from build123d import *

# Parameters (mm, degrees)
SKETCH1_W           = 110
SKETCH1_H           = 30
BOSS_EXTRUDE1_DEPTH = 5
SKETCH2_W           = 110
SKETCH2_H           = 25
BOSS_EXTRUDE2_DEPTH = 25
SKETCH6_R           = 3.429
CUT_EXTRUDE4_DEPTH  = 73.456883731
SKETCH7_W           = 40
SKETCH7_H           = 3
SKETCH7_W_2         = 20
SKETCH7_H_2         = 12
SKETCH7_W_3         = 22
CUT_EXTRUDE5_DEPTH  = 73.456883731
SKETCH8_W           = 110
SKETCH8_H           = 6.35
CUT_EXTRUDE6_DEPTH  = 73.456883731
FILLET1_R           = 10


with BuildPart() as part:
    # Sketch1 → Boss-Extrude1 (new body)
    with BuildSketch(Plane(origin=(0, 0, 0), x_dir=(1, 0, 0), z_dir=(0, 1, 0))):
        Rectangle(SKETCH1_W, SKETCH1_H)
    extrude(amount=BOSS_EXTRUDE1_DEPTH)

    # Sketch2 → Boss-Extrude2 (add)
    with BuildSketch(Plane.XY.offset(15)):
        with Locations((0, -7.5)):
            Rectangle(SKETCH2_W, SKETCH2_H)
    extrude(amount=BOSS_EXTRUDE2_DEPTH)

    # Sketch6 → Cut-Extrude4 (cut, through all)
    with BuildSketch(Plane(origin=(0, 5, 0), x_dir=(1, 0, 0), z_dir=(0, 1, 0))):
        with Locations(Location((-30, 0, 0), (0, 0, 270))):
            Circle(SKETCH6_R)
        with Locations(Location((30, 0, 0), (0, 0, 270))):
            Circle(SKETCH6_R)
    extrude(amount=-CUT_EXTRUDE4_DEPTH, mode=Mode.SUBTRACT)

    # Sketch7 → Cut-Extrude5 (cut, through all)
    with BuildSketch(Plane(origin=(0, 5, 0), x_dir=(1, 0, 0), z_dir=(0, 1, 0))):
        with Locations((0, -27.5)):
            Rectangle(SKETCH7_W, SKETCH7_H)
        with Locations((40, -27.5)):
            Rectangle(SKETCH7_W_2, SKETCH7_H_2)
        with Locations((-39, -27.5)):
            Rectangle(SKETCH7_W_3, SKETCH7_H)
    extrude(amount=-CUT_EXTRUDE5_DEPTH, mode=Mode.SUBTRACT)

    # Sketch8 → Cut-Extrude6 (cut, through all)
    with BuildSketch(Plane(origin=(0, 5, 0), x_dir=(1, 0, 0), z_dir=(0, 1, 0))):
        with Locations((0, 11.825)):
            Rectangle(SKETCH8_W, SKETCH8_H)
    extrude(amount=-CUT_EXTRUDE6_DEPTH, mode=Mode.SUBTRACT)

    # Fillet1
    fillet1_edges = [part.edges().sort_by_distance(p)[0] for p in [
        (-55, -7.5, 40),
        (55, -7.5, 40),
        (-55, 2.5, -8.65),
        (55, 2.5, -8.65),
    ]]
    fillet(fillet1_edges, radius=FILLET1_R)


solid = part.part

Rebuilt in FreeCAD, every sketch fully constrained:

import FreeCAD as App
import Part
import Sketcher


def edges_at(feature, points):
    """Names of the edges that pass closest to the given points."""
    edges = feature.Shape.Edges
    near = lambda p: min(range(len(edges)), key=lambda i: edges[i].distToShape(Part.Vertex(*p))[0])
    return sorted({f"Edge{near(p) + 1}" for p in points})

doc = App.newDocument("Part")
params = doc.addObject("Spreadsheet::Sheet", "Params")
for row, (alias, value) in enumerate([
    ("sketch1_width", "110 mm"),
    ("sketch1_height", "30 mm"),
    ("pad1_length", "5 mm"),
    ("sketch2_width", "110 mm"),
    ("sketch2_height", "25 mm"),
    ("pad2_length", "25 mm"),
    ("sketch4_width", "40 mm"),
    ("sketch4_width2", "20 mm"),
    ("sketch4_width3", "22 mm"),
    ("sketch4_height", "3 mm"),
    ("sketch4_height2", "12 mm"),
    ("sketch5_width", "110 mm"),
    ("sketch5_height", "6.35 mm"),
    ("fillet_radius", "10 mm"),
], start=1):
    params.set(f"A{row}", alias)
    params.set(f"B{row}", "=" + value)
    params.setAlias(f"B{row}", alias)

body = doc.addObject("PartDesign::Body", "Body")

# Sketch on XZ plane
sketch1 = body.newObject("Sketcher::SketchObject", "Sketch")
sketch1.AttachmentSupport = (doc.getObject("XZ_Plane"), [""])
sketch1.MapMode = "FlatFace"
sketch1.addGeometry([
    Part.LineSegment(App.Vector(-55, -15, 0), App.Vector(-55, 15, 0)),
    Part.LineSegment(App.Vector(-55, 15, 0), App.Vector(55, 15, 0)),
    Part.LineSegment(App.Vector(55, 15, 0), App.Vector(55, -15, 0)),
    Part.LineSegment(App.Vector(55, -15, 0), App.Vector(-55, -15, 0)),
], False)
sketch1.addConstraint([
    Sketcher.Constraint("Coincident", 0, 2, 1, 1),
    Sketcher.Constraint("Coincident", 1, 2, 2, 1),
    Sketcher.Constraint("Coincident", 2, 2, 3, 1),
    Sketcher.Constraint("Coincident", 3, 2, 0, 1),
    Sketcher.Constraint("Vertical", 0),
    Sketcher.Constraint("Horizontal", 1),
    Sketcher.Constraint("Vertical", 2),
    Sketcher.Constraint("Horizontal", 3),
    Sketcher.Constraint("Symmetric", 0, 2, 2, 2, -1, 1),
    Sketcher.Constraint("DistanceX", 1, 1, 1, 2, 110.0),
    Sketcher.Constraint("DistanceY", 0, 1, 0, 2, 30.0),
])
sketch1.setExpression("Constraints[9]", "Params.sketch1_width")
sketch1.setExpression("Constraints[10]", "Params.sketch1_height")
pad1 = body.newObject("PartDesign::Pad", "Pad")
pad1.Profile = sketch1
pad1.setExpression("Length", "Params.pad1_length")
pad1.Reversed = True

# Sketch on XY plane
sketch2 = body.newObject("Sketcher::SketchObject", "Sketch001")
sketch2.AttachmentSupport = (doc.getObject("XY_Plane"), [""])
sketch2.MapMode = "FlatFace"
sketch2.AttachmentOffset = App.Placement(App.Vector(0, 0, 15), App.Rotation())
sketch2.addGeometry([
    Part.LineSegment(App.Vector(-55, 5, 0), App.Vector(-55, -20, 0)),
    Part.LineSegment(App.Vector(-55, -20, 0), App.Vector(55, -20, 0)),
    Part.LineSegment(App.Vector(55, -20, 0), App.Vector(55, 5, 0)),
    Part.LineSegment(App.Vector(55, 5, 0), App.Vector(-55, 5, 0)),
], False)
sketch2.addConstraint([
    Sketcher.Constraint("Coincident", 0, 2, 1, 1),
    Sketcher.Constraint("Coincident", 1, 2, 2, 1),
    Sketcher.Constraint("Coincident", 2, 2, 3, 1),
    Sketcher.Constraint("Coincident", 3, 2, 0, 1),
    Sketcher.Constraint("Vertical", 0),
    Sketcher.Constraint("Horizontal", 1),
    Sketcher.Constraint("Vertical", 2),
    Sketcher.Constraint("Horizontal", 3),
    Sketcher.Constraint("DistanceX", 1, 1, 1, 2, 110.0),
    Sketcher.Constraint("DistanceY", 0, 2, 0, 1, 25.0),
    Sketcher.Constraint("DistanceX", 0, 2, -1, 1, 55.0),
    Sketcher.Constraint("DistanceY", 0, 2, -1, 1, 20.0),
])
sketch2.setExpression("Constraints[8]", "Params.sketch2_width")
sketch2.setExpression("Constraints[9]", "Params.sketch2_height")
pad2 = body.newObject("PartDesign::Pad", "Pad001")
pad2.Profile = sketch2
pad2.setExpression("Length", "Params.pad2_length")

# Sketch on XZ plane
sketch3 = body.newObject("Sketcher::SketchObject", "Sketch002")
sketch3.AttachmentSupport = (doc.getObject("XZ_Plane"), [""])
sketch3.MapMode = "FlatFace"
sketch3.AttachmentOffset = App.Placement(App.Vector(0, 0, -5), App.Rotation())
sketch3.addGeometry([
    Part.Circle(App.Vector(-30, 0, 0), App.Vector(0, 0, 1), 3.4),
    Part.Circle(App.Vector(30, 0, 0), App.Vector(0, 0, 1), 3.4),
], False)
sketch3.addConstraint([
    Sketcher.Constraint("Equal", 0, 1),
    Sketcher.Constraint("Symmetric", 0, 3, 1, 3, -1, 1),
    Sketcher.Constraint("PointOnObject", 0, 3, -1),
    Sketcher.Constraint("Diameter", 0, 6.858),
    Sketcher.Constraint("DistanceX", 0, 3, -1, 1, 30.0),
])
pocket1 = body.newObject("PartDesign::Pocket", "Pocket")
pocket1.Profile = sketch3
pocket1.Type = "ThroughAll"
pocket1.Reversed = True

# Sketch on XZ plane
sketch4 = body.newObject("Sketcher::SketchObject", "Sketch003")
sketch4.AttachmentSupport = (doc.getObject("XZ_Plane"), [""])
sketch4.MapMode = "FlatFace"
sketch4.AttachmentOffset = App.Placement(App.Vector(0, 0, -5), App.Rotation())
sketch4.addGeometry([
    Part.LineSegment(App.Vector(-20, 26, 0), App.Vector(-20, 29, 0)),  # 0
    Part.LineSegment(App.Vector(-20, 29, 0), App.Vector(20, 29, 0)),  # 1
    Part.LineSegment(App.Vector(20, 29, 0), App.Vector(20, 26, 0)),  # 2
    Part.LineSegment(App.Vector(20, 26, 0), App.Vector(-20, 26, 0)),  # 3
    Part.LineSegment(App.Vector(30, 21.5, 0), App.Vector(30, 33.5, 0)),  # 4
    Part.LineSegment(App.Vector(30, 33.5, 0), App.Vector(50, 33.5, 0)),  # 5
    Part.LineSegment(App.Vector(50, 33.5, 0), App.Vector(50, 21.5, 0)),  # 6
    Part.LineSegment(App.Vector(50, 21.5, 0), App.Vector(30, 21.5, 0)),  # 7
    Part.LineSegment(App.Vector(-50, 26, 0), App.Vector(-50, 29, 0)),  # 8
    Part.LineSegment(App.Vector(-50, 29, 0), App.Vector(-28, 29, 0)),  # 9
    Part.LineSegment(App.Vector(-28, 29, 0), App.Vector(-28, 26, 0)),  # 10
    Part.LineSegment(App.Vector(-28, 26, 0), App.Vector(-50, 26, 0)),  # 11
], False)
sketch4.addConstraint([
    Sketcher.Constraint("Coincident", 0, 2, 1, 1),
    Sketcher.Constraint("Coincident", 1, 2, 2, 1),
    Sketcher.Constraint("Coincident", 2, 2, 3, 1),
    Sketcher.Constraint("Coincident", 3, 2, 0, 1),
    Sketcher.Constraint("Coincident", 4, 2, 5, 1),
    Sketcher.Constraint("Coincident", 5, 2, 6, 1),
    Sketcher.Constraint("Coincident", 6, 2, 7, 1),
    Sketcher.Constraint("Coincident", 7, 2, 4, 1),
    Sketcher.Constraint("Coincident", 8, 2, 9, 1),
    Sketcher.Constraint("Coincident", 9, 2, 10, 1),
    Sketcher.Constraint("Coincident", 10, 2, 11, 1),
    Sketcher.Constraint("Coincident", 11, 2, 8, 1),
    Sketcher.Constraint("Vertical", 0),
    Sketcher.Constraint("Horizontal", 1),
    Sketcher.Constraint("Vertical", 2),
    Sketcher.Constraint("Horizontal", 3),
    Sketcher.Constraint("Vertical", 4),
    Sketcher.Constraint("Horizontal", 5),
    Sketcher.Constraint("Vertical", 6),
    Sketcher.Constraint("Horizontal", 7),
    Sketcher.Constraint("Vertical", 8),
    Sketcher.Constraint("Horizontal", 9),
    Sketcher.Constraint("Vertical", 10),
    Sketcher.Constraint("Horizontal", 11),
    Sketcher.Constraint("Horizontal", 1, 2, 8, 2),
    Sketcher.Constraint("Horizontal", 3, 2, 10, 2),
    Sketcher.Constraint("DistanceX", 1, 1, 1, 2, 40.0),
    Sketcher.Constraint("DistanceX", 5, 1, 5, 2, 20.0),
    Sketcher.Constraint("DistanceX", 9, 1, 9, 2, 22.0),
    Sketcher.Constraint("DistanceY", 0, 1, 0, 2, 3.0),
    Sketcher.Constraint("DistanceY", 4, 1, 4, 2, 12.0),
    Sketcher.Constraint("DistanceX", 0, 2, -1, 1, 20.0),
    Sketcher.Constraint("DistanceY", -1, 1, 0, 2, 29.0),
    Sketcher.Constraint("DistanceX", -1, 1, 4, 2, 30.0),
    Sketcher.Constraint("DistanceX", 8, 2, -1, 1, 50.0),
    Sketcher.Constraint("DistanceY", -1, 1, 4, 2, 33.5),
])
sketch4.setExpression("Constraints[26]", "Params.sketch4_width")
sketch4.setExpression("Constraints[27]", "Params.sketch4_width2")
sketch4.setExpression("Constraints[28]", "Params.sketch4_width3")
sketch4.setExpression("Constraints[29]", "Params.sketch4_height")
sketch4.setExpression("Constraints[30]", "Params.sketch4_height2")
pocket2 = body.newObject("PartDesign::Pocket", "Pocket001")
pocket2.Profile = sketch4
pocket2.Type = "ThroughAll"
pocket2.Reversed = True

# Sketch on XZ plane
sketch5 = body.newObject("Sketcher::SketchObject", "Sketch004")
sketch5.AttachmentSupport = (doc.getObject("XZ_Plane"), [""])
sketch5.MapMode = "FlatFace"
sketch5.AttachmentOffset = App.Placement(App.Vector(0, 0, -5), App.Rotation())
sketch5.addGeometry([
    Part.LineSegment(App.Vector(-55, -15, 0), App.Vector(-55, -9, 0)),
    Part.LineSegment(App.Vector(-55, -9, 0), App.Vector(55, -9, 0)),
    Part.LineSegment(App.Vector(55, -9, 0), App.Vector(55, -15, 0)),
    Part.LineSegment(App.Vector(55, -15, 0), App.Vector(-55, -15, 0)),
], False)
sketch5.addConstraint([
    Sketcher.Constraint("Coincident", 0, 2, 1, 1),
    Sketcher.Constraint("Coincident", 1, 2, 2, 1),
    Sketcher.Constraint("Coincident", 2, 2, 3, 1),
    Sketcher.Constraint("Coincident", 3, 2, 0, 1),
    Sketcher.Constraint("Vertical", 0),
    Sketcher.Constraint("Horizontal", 1),
    Sketcher.Constraint("Vertical", 2),
    Sketcher.Constraint("Horizontal", 3),
    Sketcher.Constraint("DistanceX", 1, 1, 1, 2, 110.0),
    Sketcher.Constraint("DistanceX", 0, 2, -1, 1, 55.0),
    Sketcher.Constraint("DistanceY", 2, 2, -1, 1, 15.0),
    Sketcher.Constraint("DistanceY", 0, 1, 0, 2, 6.35),
])
sketch5.setExpression("Constraints[8]", "Params.sketch5_width")
sketch5.setExpression("Constraints[11]", "Params.sketch5_height")
pocket3 = body.newObject("PartDesign::Pocket", "Pocket002")
pocket3.Profile = sketch5
pocket3.Type = "ThroughAll"
pocket3.Reversed = True
doc.recompute()

fillet = body.newObject("PartDesign::Fillet", "Fillet")
fillet.Base = (pocket3, edges_at(pocket3, [
    (-55, -7.5, 40),
    (55, -7.5, 40),
    (-55, 2.5, -8.65),
    (55, 2.5, -8.65),
]))
fillet.setExpression("Radius", "Params.fillet_radius")

doc.recompute()
